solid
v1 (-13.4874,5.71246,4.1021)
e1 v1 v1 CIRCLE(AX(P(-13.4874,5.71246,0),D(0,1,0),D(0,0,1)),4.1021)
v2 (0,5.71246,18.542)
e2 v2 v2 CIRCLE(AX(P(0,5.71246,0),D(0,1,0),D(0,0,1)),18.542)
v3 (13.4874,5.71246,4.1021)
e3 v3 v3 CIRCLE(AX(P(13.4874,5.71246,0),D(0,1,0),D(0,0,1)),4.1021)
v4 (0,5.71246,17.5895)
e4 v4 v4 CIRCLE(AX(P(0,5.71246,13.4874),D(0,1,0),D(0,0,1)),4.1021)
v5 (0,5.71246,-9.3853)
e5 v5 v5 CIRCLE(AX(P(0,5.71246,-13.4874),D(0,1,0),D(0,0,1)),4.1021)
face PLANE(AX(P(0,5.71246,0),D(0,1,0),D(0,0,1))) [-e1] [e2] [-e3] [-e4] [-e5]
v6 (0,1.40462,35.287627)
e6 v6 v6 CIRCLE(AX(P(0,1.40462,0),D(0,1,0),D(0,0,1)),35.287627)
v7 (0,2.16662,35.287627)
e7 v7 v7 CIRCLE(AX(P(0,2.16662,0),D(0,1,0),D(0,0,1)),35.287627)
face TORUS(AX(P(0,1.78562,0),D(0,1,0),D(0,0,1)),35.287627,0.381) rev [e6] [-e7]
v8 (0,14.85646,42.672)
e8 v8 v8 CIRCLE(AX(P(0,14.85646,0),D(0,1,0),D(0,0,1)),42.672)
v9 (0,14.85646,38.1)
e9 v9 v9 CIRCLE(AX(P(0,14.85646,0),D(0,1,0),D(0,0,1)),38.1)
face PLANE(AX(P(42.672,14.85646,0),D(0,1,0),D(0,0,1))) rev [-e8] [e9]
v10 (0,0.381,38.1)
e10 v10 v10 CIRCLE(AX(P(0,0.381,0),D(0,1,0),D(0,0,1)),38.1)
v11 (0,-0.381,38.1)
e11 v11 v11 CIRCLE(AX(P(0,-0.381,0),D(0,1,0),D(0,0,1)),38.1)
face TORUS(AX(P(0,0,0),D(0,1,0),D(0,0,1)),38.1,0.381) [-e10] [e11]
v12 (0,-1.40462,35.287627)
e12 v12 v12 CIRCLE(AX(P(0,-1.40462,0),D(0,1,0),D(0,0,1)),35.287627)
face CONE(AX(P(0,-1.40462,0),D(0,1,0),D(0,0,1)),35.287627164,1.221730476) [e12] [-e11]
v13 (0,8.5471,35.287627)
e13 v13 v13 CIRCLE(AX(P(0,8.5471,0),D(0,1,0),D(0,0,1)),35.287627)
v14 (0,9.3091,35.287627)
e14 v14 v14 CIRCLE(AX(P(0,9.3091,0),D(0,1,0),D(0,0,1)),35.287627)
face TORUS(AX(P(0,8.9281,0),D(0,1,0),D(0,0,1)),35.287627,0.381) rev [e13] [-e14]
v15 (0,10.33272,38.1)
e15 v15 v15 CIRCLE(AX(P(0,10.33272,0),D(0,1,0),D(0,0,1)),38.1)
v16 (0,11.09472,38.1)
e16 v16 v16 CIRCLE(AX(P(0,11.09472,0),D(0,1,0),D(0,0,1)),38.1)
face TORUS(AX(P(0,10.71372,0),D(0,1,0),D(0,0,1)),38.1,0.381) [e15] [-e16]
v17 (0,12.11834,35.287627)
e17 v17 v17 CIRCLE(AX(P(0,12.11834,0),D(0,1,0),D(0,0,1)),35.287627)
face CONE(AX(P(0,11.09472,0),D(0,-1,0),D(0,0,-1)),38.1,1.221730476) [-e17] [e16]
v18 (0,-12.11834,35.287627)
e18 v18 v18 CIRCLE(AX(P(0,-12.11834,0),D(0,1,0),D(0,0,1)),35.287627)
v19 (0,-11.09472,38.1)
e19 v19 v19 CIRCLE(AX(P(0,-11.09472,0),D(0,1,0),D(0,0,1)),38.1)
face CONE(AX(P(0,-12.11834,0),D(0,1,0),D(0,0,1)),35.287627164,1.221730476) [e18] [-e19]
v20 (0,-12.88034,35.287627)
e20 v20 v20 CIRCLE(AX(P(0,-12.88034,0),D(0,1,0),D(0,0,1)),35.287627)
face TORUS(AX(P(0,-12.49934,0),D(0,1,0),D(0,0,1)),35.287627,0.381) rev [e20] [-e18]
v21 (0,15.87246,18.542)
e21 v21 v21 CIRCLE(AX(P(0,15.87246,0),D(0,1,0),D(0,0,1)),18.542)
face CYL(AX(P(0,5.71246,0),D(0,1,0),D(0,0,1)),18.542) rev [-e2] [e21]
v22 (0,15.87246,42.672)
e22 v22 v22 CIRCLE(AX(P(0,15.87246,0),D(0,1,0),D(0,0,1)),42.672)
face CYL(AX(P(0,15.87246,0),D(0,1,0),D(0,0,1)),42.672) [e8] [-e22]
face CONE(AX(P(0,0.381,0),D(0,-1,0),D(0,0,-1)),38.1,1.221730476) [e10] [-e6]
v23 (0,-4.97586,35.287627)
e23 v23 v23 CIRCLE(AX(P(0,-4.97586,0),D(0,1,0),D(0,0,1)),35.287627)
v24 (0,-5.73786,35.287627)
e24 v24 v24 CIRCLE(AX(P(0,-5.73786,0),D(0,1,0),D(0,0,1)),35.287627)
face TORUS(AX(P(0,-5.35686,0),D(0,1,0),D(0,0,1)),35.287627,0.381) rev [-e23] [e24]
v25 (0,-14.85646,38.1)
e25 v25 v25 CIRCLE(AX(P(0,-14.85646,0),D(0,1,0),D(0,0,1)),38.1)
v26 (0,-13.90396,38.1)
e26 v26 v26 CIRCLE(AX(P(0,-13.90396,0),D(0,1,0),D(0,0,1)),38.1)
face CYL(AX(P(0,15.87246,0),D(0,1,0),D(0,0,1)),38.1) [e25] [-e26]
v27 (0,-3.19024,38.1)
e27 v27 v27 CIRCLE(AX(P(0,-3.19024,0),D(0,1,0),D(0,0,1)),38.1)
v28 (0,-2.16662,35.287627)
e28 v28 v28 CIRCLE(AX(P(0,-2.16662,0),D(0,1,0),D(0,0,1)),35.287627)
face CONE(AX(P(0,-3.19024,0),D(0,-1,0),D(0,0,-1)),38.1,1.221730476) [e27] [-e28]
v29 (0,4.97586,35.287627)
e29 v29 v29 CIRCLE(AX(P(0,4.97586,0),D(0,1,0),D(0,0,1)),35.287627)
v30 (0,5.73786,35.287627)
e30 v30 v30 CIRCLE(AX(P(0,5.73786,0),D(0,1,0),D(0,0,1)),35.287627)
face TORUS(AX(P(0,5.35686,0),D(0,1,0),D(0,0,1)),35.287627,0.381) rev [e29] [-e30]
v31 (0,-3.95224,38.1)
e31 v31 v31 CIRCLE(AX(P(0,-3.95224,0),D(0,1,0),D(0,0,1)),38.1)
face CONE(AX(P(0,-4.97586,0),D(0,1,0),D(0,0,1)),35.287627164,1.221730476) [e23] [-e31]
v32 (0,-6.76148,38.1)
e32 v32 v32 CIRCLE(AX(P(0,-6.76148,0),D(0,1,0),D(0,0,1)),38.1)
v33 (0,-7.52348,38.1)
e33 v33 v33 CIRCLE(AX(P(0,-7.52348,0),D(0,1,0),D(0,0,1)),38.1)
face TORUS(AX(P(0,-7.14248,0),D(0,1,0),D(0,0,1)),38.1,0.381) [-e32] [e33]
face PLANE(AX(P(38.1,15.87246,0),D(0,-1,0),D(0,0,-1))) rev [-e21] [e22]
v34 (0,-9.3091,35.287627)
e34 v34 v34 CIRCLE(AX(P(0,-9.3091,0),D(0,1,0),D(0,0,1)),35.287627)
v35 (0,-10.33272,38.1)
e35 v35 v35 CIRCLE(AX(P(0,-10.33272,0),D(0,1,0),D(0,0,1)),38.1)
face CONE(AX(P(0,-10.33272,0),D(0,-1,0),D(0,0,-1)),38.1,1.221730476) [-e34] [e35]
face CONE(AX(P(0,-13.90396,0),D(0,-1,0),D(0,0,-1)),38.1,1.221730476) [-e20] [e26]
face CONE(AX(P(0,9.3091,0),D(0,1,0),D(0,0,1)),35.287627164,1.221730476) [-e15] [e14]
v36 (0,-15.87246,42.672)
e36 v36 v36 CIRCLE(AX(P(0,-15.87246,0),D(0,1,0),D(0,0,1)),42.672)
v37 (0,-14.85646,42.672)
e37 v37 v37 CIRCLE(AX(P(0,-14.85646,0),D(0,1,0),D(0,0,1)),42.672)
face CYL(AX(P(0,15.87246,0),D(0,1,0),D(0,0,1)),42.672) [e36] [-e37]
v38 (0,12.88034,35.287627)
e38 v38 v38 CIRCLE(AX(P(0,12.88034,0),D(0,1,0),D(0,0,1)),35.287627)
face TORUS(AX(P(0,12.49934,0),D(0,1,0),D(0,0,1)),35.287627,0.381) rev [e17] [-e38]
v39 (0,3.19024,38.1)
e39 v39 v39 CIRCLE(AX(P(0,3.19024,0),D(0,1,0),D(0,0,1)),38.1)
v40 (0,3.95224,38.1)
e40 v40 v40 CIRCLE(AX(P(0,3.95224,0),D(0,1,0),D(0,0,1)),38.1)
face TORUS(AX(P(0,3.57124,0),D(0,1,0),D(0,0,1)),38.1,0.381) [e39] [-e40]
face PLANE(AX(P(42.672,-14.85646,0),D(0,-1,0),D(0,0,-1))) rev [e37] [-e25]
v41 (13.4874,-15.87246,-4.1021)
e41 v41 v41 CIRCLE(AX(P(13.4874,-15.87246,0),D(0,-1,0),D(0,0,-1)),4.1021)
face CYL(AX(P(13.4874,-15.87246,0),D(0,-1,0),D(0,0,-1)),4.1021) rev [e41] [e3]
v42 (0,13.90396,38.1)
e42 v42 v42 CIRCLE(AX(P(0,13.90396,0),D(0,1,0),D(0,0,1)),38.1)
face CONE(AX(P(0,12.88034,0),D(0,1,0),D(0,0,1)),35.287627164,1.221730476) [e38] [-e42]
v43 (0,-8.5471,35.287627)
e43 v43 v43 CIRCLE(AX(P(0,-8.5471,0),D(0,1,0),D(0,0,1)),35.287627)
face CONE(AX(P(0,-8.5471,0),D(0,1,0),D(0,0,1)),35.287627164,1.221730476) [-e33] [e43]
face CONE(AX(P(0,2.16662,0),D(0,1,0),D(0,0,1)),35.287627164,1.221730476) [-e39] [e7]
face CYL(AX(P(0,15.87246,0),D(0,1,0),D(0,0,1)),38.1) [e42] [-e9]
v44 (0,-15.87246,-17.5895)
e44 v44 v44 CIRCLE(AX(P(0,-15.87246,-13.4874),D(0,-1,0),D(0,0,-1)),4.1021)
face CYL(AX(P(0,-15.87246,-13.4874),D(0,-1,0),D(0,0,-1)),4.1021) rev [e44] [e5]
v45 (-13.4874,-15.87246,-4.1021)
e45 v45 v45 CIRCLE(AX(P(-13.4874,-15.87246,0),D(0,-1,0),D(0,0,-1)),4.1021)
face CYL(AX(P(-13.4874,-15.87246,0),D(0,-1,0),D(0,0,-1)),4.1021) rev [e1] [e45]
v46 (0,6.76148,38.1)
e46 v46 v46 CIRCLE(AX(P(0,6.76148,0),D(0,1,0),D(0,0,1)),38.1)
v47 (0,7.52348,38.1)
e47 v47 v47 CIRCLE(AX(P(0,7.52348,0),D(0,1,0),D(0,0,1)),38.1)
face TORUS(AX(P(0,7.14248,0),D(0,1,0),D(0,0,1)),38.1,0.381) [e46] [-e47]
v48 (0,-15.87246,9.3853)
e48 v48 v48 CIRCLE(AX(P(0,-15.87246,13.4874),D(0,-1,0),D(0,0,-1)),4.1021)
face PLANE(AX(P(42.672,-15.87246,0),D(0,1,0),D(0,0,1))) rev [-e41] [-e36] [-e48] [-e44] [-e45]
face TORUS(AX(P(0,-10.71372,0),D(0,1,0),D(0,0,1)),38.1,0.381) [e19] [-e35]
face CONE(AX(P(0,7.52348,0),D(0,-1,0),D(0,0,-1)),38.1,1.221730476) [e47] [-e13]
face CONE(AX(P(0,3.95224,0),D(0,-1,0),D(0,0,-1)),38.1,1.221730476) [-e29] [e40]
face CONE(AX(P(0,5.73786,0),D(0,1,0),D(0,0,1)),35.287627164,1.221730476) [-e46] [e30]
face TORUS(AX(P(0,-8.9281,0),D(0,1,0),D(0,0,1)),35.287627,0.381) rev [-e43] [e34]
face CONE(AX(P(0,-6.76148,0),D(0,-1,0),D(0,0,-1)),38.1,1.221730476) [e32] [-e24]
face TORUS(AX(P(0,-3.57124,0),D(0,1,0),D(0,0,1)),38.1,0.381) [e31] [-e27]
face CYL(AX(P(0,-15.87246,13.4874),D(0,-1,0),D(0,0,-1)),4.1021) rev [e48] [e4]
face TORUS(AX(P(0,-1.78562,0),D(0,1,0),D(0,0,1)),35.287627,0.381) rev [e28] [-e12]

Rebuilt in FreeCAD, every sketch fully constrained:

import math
import FreeCAD as App
import Part
import Sketcher

V = App.Vector
Q = App.Units.Quantity

doc = App.newDocument("Part")
params = doc.addObject("Spreadsheet::Sheet", "Params")
for row, (alias, value) in enumerate([
    ("sketch1_radius", "0.015 in"),
    ("sketch1_width", "0.18 in"),
    ("sketch1_width2", "1.68 in"),
    ("sketch1_height", "0.04 in"),
    ("revolution_angle", "360 deg"),
    ("sketch2_diameter", "1.46 in"),
    ("pocket1_length", "0.4 in"),
    ("sketch3_diameter", "0.323 in"),
    ("hole_diameter", "0.323 in"),
], start=1):
    params.set(f"A{row}", alias)
    params.set(f"B{row}", "=" + value)
    params.setAlias(f"B{row}", alias)

body = doc.addObject("PartDesign::Body", "Body")

sketch1 = doc.addObject("Sketcher::SketchObject", "Sketch")
body.addObject(sketch1)
sketch1.AttachmentSupport = (doc.XY_Plane, [""])
sketch1.MapMode = "FlatFace"
sketch1.addGeometry([
    Part.LineSegment(V(38.1, 13.9, 0), V(38.1, 14.86, 0)),
    Part.LineSegment(V(38.1, 14.86, 0), V(42.67, 14.86, 0)),
    Part.LineSegment(V(42.67, 14.86, 0), V(42.67, 15.87, 0)),
    Part.LineSegment(V(42.67, 15.87, 0), V(0, 15.87, 0)),
    Part.LineSegment(V(0, 15.87, 0), V(0, -15.87, 0)),
    Part.LineSegment(V(0, -15.87, 0), V(42.67, -15.87, 0)),
    Part.LineSegment(V(42.67, -15.87, 0), V(42.67, -14.86, 0)),
    Part.LineSegment(V(42.67, -14.86, 0), V(38.1, -14.86, 0)),
    Part.LineSegment(V(38.1, -14.86, 0), V(38.1, -13.9, 0)),
    Part.LineSegment(V(38.1, -13.9, 0), V(35.29, -12.88, 0)),
    Part.ArcOfCircle(Part.Circle(V(35.29, -12.5, 0), V(0, 0, 1), 0.38), math.radians(90), math.radians(270)),
    Part.LineSegment(V(35.29, -12.12, 0), V(38.1, -11.09, 0)),
    Part.ArcOfCircle(Part.Circle(V(38.1, -10.71, 0), V(0, 0, 1), 0.38), math.radians(-90), math.radians(90)),
    Part.LineSegment(V(38.1, -10.33, 0), V(35.29, -9.31, 0)),
    Part.ArcOfCircle(Part.Circle(V(35.29, -8.93, 0), V(0, 0, 1), 0.38), math.radians(90), math.radians(270)),
    Part.LineSegment(V(35.29, -8.55, 0), V(38.1, -7.52, 0)),
    Part.ArcOfCircle(Part.Circle(V(38.1, -7.14, 0), V(0, 0, 1), 0.38), math.radians(-90), math.radians(90)),
    Part.LineSegment(V(38.1, -6.76, 0), V(35.29, -5.74, 0)),
    Part.ArcOfCircle(Part.Circle(V(35.29, -5.36, 0), V(0, 0, 1), 0.38), math.radians(90), math.radians(270)),
    Part.LineSegment(V(35.29, -4.98, 0), V(38.1, -3.95, 0)),
    Part.ArcOfCircle(Part.Circle(V(38.1, -3.57, 0), V(0, 0, 1), 0.38), math.radians(-90), math.radians(90)),
    Part.LineSegment(V(38.1, -3.19, 0), V(35.29, -2.17, 0)),
    Part.ArcOfCircle(Part.Circle(V(35.29, -1.79, 0), V(0, 0, 1), 0.38), math.radians(90), math.radians(270)),
    Part.LineSegment(V(35.29, -1.4, 0), V(38.1, -0.38, 0)),
    Part.ArcOfCircle(Part.Circle(V(38.1, 0, 0), V(0, 0, 1), 0.38), math.radians(-90), math.radians(90)),
    Part.LineSegment(V(38.1, 0.38, 0), V(35.29, 1.4, 0)),
    Part.ArcOfCircle(Part.Circle(V(35.29, 1.79, 0), V(0, 0, 1), 0.38), math.radians(90), math.radians(270)),
    Part.LineSegment(V(35.29, 2.17, 0), V(38.1, 3.19, 0)),
    Part.ArcOfCircle(Part.Circle(V(38.1, 3.57, 0), V(0, 0, 1), 0.38), math.radians(-90), math.radians(90)),
    Part.LineSegment(V(38.1, 3.95, 0), V(35.29, 4.98, 0)),
    Part.ArcOfCircle(Part.Circle(V(35.29, 5.36, 0), V(0, 0, 1), 0.38), math.radians(90), math.radians(270)),
    Part.LineSegment(V(35.29, 5.74, 0), V(38.1, 6.76, 0)),
    Part.ArcOfCircle(Part.Circle(V(38.1, 7.14, 0), V(0, 0, 1), 0.38), math.radians(-90), math.radians(90)),
    Part.LineSegment(V(38.1, 7.52, 0), V(35.29, 8.55, 0)),
    Part.ArcOfCircle(Part.Circle(V(35.29, 8.93, 0), V(0, 0, 1), 0.38), math.radians(90), math.radians(270)),
    Part.LineSegment(V(35.29, 9.31, 0), V(38.1, 10.33, 0)),
    Part.ArcOfCircle(Part.Circle(V(38.1, 10.71, 0), V(0, 0, 1), 0.38), math.radians(-90), math.radians(90)),
    Part.LineSegment(V(38.1, 11.09, 0), V(35.29, 12.12, 0)),
    Part.ArcOfCircle(Part.Circle(V(35.29, 12.5, 0), V(0, 0, 1), 0.38), math.radians(90), math.radians(270)),
    Part.LineSegment(V(35.29, 12.88, 0), V(38.1, 13.9, 0)),
], False)
sketch1.addConstraint([
    Sketcher.Constraint("Coincident", 0, 2, 1, 1),
    Sketcher.Constraint("Coincident", 1, 2, 2, 1),
    Sketcher.Constraint("Coincident", 2, 2, 3, 1),
    Sketcher.Constraint("Coincident", 3, 2, 4, 1),
    Sketcher.Constraint("Coincident", 4, 2, 5, 1),
    Sketcher.Constraint("Coincident", 5, 2, 6, 1),
    Sketcher.Constraint("Coincident", 6, 2, 7, 1),
    Sketcher.Constraint("Coincident", 7, 2, 8, 1),
    Sketcher.Constraint("Coincident", 8, 2, 9, 1),
    Sketcher.Constraint("Coincident", 9, 2, 10, 2),
    Sketcher.Constraint("Coincident", 10, 1, 11, 1),
    Sketcher.Constraint("Coincident", 11, 2, 12, 1),
    Sketcher.Constraint("Coincident", 12, 2, 13, 1),
    Sketcher.Constraint("Coincident", 13, 2, 14, 2),
    Sketcher.Constraint("Coincident", 14, 1, 15, 1),
    Sketcher.Constraint("Coincident", 15, 2, 16, 1),
    Sketcher.Constraint("Coincident", 16, 2, 17, 1),
    Sketcher.Constraint("Coincident", 17, 2, 18, 2),
    Sketcher.Constraint("Coincident", 18, 1, 19, 1),
    Sketcher.Constraint("Coincident", 19, 2, 20, 1),
    Sketcher.Constraint("Coincident", 20, 2, 21, 1),
    Sketcher.Constraint("Coincident", 21, 2, 22, 2),
    Sketcher.Constraint("Coincident", 22, 1, 23, 1),
    Sketcher.Constraint("Coincident", 23, 2, 24, 1),
    Sketcher.Constraint("Coincident", 24, 2, 25, 1),
    Sketcher.Constraint("Coincident", 25, 2, 26, 2),
    Sketcher.Constraint("Coincident", 26, 1, 27, 1),
    Sketcher.Constraint("Coincident", 27, 2, 28, 1),
    Sketcher.Constraint("Coincident", 28, 2, 29, 1),
    Sketcher.Constraint("Coincident", 29, 2, 30, 2),
    Sketcher.Constraint("Coincident", 30, 1, 31, 1),
    Sketcher.Constraint("Coincident", 31, 2, 32, 1),
    Sketcher.Constraint("Coincident", 32, 2, 33, 1),
    Sketcher.Constraint("Coincident", 33, 2, 34, 2),
    Sketcher.Constraint("Coincident", 34, 1, 35, 1),
    Sketcher.Constraint("Coincident", 35, 2, 36, 1),
    Sketcher.Constraint("Coincident", 36, 2, 37, 1),
    Sketcher.Constraint("Coincident", 37, 2, 38, 2),
    Sketcher.Constraint("Coincident", 38, 1, 39, 1),
    Sketcher.Constraint("Coincident", 39, 2, 0, 1),
    Sketcher.Constraint("Vertical", 0),
    Sketcher.Constraint("Horizontal", 1),
    Sketcher.Constraint("Vertical", 2),
    Sketcher.Constraint("Horizontal", 3),
    Sketcher.Constraint("Vertical", 4),
    Sketcher.Constraint("Horizontal", 5),
    Sketcher.Constraint("Vertical", 6),
    Sketcher.Constraint("Horizontal", 7),
    Sketcher.Constraint("Vertical", 8),
    Sketcher.Constraint("Equal", 10, 12),
    Sketcher.Constraint("Equal", 12, 14),
    Sketcher.Constraint("Equal", 14, 16),
    Sketcher.Constraint("Equal", 16, 18),
    Sketcher.Constraint("Equal", 18, 20),
    Sketcher.Constraint("Equal", 20, 22),
    Sketcher.Constraint("Equal", 22, 24),
    Sketcher.Constraint("Equal", 24, 26),
    Sketcher.Constraint("Equal", 26, 28),
    Sketcher.Constraint("Equal", 28, 30),
    Sketcher.Constraint("Equal", 30, 32),
    Sketcher.Constraint("Equal", 32, 34),
    Sketcher.Constraint("Equal", 34, 36),
    Sketcher.Constraint("Equal", 36, 38),
    Sketcher.Constraint("Symmetric", 3, 2, 4, 2, -1, 1),
    Sketcher.Constraint("Symmetric", 22, 3, 26, 3, -1),
    Sketcher.Constraint("Symmetric", 20, 3, 28, 3, -1),
    Sketcher.Constraint("Symmetric", 18, 3, 30, 3, -1),
    Sketcher.Constraint("Symmetric", 16, 3, 32, 3, -1),
    Sketcher.Constraint("Symmetric", 14, 3, 34, 3, -1),
    Sketcher.Constraint("Symmetric", 12, 3, 36, 3, -1),
    Sketcher.Constraint("Symmetric", 10, 3, 38, 3, -1),
    Sketcher.Constraint("Symmetric", 1, 2, 6, 2, -1),
    Sketcher.Constraint("Symmetric", 23, 2, 24, 2, -1),
    Sketcher.Constraint("Symmetric", 8, 2, 39, 2, -1),
    Sketcher.Constraint("Parallel", 9, 13),
    Sketcher.Constraint("Parallel", 11, 15),
    Sketcher.Constraint("Parallel", 13, 17),
    Sketcher.Constraint("Parallel", 15, 19),
    Sketcher.Constraint("Parallel", 17, 21),
    Sketcher.Constraint("Parallel", 19, 23),
    Sketcher.Constraint("Parallel", 21, 25),
    Sketcher.Constraint("Parallel", 23, 27),
    Sketcher.Constraint("Parallel", 25, 29),
    Sketcher.Constraint("Parallel", 27, 31),
    Sketcher.Constraint("Parallel", 29, 33),
    Sketcher.Constraint("Parallel", 31, 35),
    Sketcher.Constraint("Parallel", 33, 37),
    Sketcher.Constraint("Parallel", 35, 39),
    Sketcher.Constraint("Vertical", 10, 3, 14, 3),
    Sketcher.Constraint("Vertical", 12, 3, 16, 3),
    Sketcher.Constraint("Vertical", 14, 3, 18, 3),
    Sketcher.Constraint("Vertical", 16, 3, 20, 3),
    Sketcher.Constraint("Vertical", 18, 3, 22, 3),
    Sketcher.Constraint("Vertical", 20, 3, 24, 3),
    Sketcher.Constraint("Vertical", 36, 3, 0, 2),
    Sketcher.Constraint("Vertical", 38, 3, 9, 2),
    Sketcher.Constraint("Vertical", 9, 2, 10, 1),
    Sketcher.Constraint("Vertical", 8, 2, 11, 2),
    Sketcher.Constraint("Vertical", 11, 2, 12, 2),
    Sketcher.Constraint("Vertical", 10, 1, 13, 2),
    Sketcher.Constraint("Vertical", 13, 2, 14, 1),
    Sketcher.Constraint("Vertical", 12, 2, 15, 2),
    Sketcher.Constraint("Vertical", 15, 2, 16, 2),
    Sketcher.Constraint("Vertical", 14, 1, 17, 2),
    Sketcher.Constraint("Vertical", 17, 2, 18, 1),
    Sketcher.Constraint("Vertical", 16, 2, 19, 2),
    Sketcher.Constraint("Vertical", 19, 2, 20, 2),
    Sketcher.Constraint("Vertical", 18, 1, 21, 2),
    Sketcher.Constraint("Vertical", 21, 2, 22, 1),
    Sketcher.Constraint("Vertical", 20, 2, 23, 2),
    Sketcher.Constraint("Vertical", 22, 1, 25, 2),
    Sketcher.Constraint("Vertical", 25, 2, 26, 1),
    Sketcher.Constraint("Vertical", 27, 2, 28, 2),
    Sketcher.Constraint("Vertical", 29, 2, 30, 1),
    Sketcher.Constraint("Vertical", 31, 2, 32, 2),
    Sketcher.Constraint("Vertical", 33, 2, 34, 1),
    Sketcher.Constraint("Vertical", 35, 2, 36, 2),
    Sketcher.Constraint("Angle", 9, Q("160 deg")),
    Sketcher.Constraint("Radius", 10, Q("0.015 in")),
    Sketcher.Constraint("DistanceX", 1, 1, 1, 2, Q("0.18 in")),
    Sketcher.Constraint("DistanceX", 3, 2, 3, 1, Q("1.68 in")),
    Sketcher.Constraint("DistanceY", 2, 1, 2, 2, Q("0.04 in")),
    Sketcher.Constraint("DistanceY", 0, 1, 0, 2, Q("0.0375 in")),
    Sketcher.Constraint("DistanceY", 4, 2, 4, 1, Q("1.2498 in")),
])
sketch1.setExpression("Constraints[118]", "Params.sketch1_radius")
sketch1.setExpression("Constraints[119]", "Params.sketch1_width")
sketch1.setExpression("Constraints[120]", "Params.sketch1_width2")
sketch1.setExpression("Constraints[121]", "Params.sketch1_height")
revolution = doc.addObject("PartDesign::Revolution", "Revolution")
body.addObject(revolution)
revolution.Profile = sketch1
revolution.ReferenceAxis = (sketch1, ["V_Axis"])
revolution.setExpression("Angle", "Params.revolution_angle")

sketch2 = doc.addObject("Sketcher::SketchObject", "Sketch001")
body.addObject(sketch2)
sketch2.AttachmentSupport = (doc.XZ_Plane, [""])
sketch2.MapMode = "FlatFace"
sketch2.AttachmentOffset = App.Placement(V(0, 0, -0.6249 * 25.4), App.Rotation())
sketch2.addGeometry(Part.Circle(V(0, 0, 0), V(0, 0, 1), 19), False)
sketch2.addConstraint([
    Sketcher.Constraint("Coincident", 0, 3, -1, 1),
    Sketcher.Constraint("Diameter", 0, Q("1.46 in")),
])
sketch2.setExpression("Constraints[1]", "Params.sketch2_diameter")
pocket1 = doc.addObject("PartDesign::Pocket", "Pocket")
body.addObject(pocket1)
pocket1.Profile = sketch2
pocket1.setExpression("Length", "Params.pocket1_length")
pocket1.Reversed = True

sketch3 = doc.addObject("Sketcher::SketchObject", "Sketch002")
body.addObject(sketch3)
sketch3.AttachmentSupport = (doc.XZ_Plane, [""])
sketch3.MapMode = "FlatFace"
sketch3.AttachmentOffset = App.Placement(V(0, 0, 0.6249 * 25.4), App.Rotation())
sketch3.addGeometry(Part.Circle(V(0, -13.5, 0), V(0, 0, 1), 4.1), False)
sketch3.addConstraint([
    Sketcher.Constraint("PointOnObject", 0, 3, -2),
    Sketcher.Constraint("Diameter", 0, Q("0.323 in")),
    Sketcher.Constraint("DistanceY", 0, 3, -1, 1, Q("0.531 in")),
])
sketch3.setExpression("Constraints[1]", "Params.sketch3_diameter")
doc.recompute()
hole = doc.addObject("PartDesign::Hole", "Hole")
body.addObject(hole)
hole.Profile = sketch3
hole.ThreadType = "None"
hole.setExpression("Diameter", "Params.hole_diameter")
hole.DepthType = "ThroughAll"
doc.recompute()

polarpattern = doc.addObject("PartDesign::PolarPattern", "PolarPattern")
body.addObject(polarpattern)
polarpattern.Originals = [hole]
polarpattern.Axis = (doc.Y_Axis, [""])
polarpattern.Angle = 360
polarpattern.Occurrences = 4
body.Tip = polarpattern

doc.recompute()
